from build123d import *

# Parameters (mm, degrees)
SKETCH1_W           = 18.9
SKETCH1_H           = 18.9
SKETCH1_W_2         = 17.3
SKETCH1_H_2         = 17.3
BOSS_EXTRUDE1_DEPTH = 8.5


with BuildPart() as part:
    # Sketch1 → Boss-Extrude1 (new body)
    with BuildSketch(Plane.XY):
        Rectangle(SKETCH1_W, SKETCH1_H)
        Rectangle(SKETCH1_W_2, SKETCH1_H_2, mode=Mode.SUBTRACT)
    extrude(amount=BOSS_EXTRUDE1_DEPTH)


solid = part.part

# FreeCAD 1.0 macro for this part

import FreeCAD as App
import Part
import Sketcher

doc = App.newDocument("Part")
body = doc.addObject("PartDesign::Body", "Body")

sketch1 = body.newObject("Sketcher::SketchObject", "Sketch")
sketch1.AttachmentSupport = (doc.getObject("XY_Plane"), [""])
sketch1.MapMode = "FlatFace"
sketch1.addGeometry([
    Part.LineSegment(App.Vector(-9, 9, 0), App.Vector(-9, -9, 0)),
    Part.LineSegment(App.Vector(-9, -9, 0), App.Vector(9, -9, 0)),
    Part.LineSegment(App.Vector(9, -9, 0), App.Vector(9, 9, 0)),
    Part.LineSegment(App.Vector(9, 9, 0), App.Vector(-9, 9, 0)),
    Part.LineSegment(App.Vector(9, -9, 0), App.Vector(-9, -9, 0)),
    Part.LineSegment(App.Vector(-9, -9, 0), App.Vector(-9, 9, 0)),
    Part.LineSegment(App.Vector(-9, 9, 0), App.Vector(9, 9, 0)),
    Part.LineSegment(App.Vector(9, 9, 0), App.Vector(9, -9, 0)),
], False)
sketch1.addConstraint([
    Sketcher.Constraint("Coincident", 0, 2, 1, 1),
    Sketcher.Constraint("Coincident", 1, 2, 2, 1),
    Sketcher.Constraint("Coincident", 2, 2, 3, 1),
    Sketcher.Constraint("Coincident", 3, 2, 0, 1),
    Sketcher.Constraint("Coincident", 4, 2, 5, 1),
    Sketcher.Constraint("Coincident", 5, 2, 6, 1),
    Sketcher.Constraint("Coincident", 6, 2, 7, 1),
    Sketcher.Constraint("Coincident", 7, 2, 4, 1),
    Sketcher.Constraint("Vertical", 0),
    Sketcher.Constraint("Horizontal", 1),
    Sketcher.Constraint("Vertical", 2),
    Sketcher.Constraint("Horizontal", 3),
    Sketcher.Constraint("Horizontal", 4),
    Sketcher.Constraint("Vertical", 5),
    Sketcher.Constraint("Horizontal", 6),
    Sketcher.Constraint("Vertical", 7),
    Sketcher.Constraint("Symmetric", 0, 2, 2, 2, -1, 1),
    Sketcher.Constraint("Symmetric", 4, 2, 6, 2, -1, 1),
    Sketcher.Constraint("Equal", 3, 0),
    Sketcher.Constraint("Equal", 6, 5),
    Sketcher.Constraint("DistanceX", 1, 1, 1, 2, 18.9),
    Sketcher.Constraint("DistanceX", 4, 2, 4, 1, 17.3),
])
pad1 = body.newObject("PartDesign::Pad", "Pad")
pad1.Profile = sketch1
pad1.Length = 8.5

doc.recompute()
